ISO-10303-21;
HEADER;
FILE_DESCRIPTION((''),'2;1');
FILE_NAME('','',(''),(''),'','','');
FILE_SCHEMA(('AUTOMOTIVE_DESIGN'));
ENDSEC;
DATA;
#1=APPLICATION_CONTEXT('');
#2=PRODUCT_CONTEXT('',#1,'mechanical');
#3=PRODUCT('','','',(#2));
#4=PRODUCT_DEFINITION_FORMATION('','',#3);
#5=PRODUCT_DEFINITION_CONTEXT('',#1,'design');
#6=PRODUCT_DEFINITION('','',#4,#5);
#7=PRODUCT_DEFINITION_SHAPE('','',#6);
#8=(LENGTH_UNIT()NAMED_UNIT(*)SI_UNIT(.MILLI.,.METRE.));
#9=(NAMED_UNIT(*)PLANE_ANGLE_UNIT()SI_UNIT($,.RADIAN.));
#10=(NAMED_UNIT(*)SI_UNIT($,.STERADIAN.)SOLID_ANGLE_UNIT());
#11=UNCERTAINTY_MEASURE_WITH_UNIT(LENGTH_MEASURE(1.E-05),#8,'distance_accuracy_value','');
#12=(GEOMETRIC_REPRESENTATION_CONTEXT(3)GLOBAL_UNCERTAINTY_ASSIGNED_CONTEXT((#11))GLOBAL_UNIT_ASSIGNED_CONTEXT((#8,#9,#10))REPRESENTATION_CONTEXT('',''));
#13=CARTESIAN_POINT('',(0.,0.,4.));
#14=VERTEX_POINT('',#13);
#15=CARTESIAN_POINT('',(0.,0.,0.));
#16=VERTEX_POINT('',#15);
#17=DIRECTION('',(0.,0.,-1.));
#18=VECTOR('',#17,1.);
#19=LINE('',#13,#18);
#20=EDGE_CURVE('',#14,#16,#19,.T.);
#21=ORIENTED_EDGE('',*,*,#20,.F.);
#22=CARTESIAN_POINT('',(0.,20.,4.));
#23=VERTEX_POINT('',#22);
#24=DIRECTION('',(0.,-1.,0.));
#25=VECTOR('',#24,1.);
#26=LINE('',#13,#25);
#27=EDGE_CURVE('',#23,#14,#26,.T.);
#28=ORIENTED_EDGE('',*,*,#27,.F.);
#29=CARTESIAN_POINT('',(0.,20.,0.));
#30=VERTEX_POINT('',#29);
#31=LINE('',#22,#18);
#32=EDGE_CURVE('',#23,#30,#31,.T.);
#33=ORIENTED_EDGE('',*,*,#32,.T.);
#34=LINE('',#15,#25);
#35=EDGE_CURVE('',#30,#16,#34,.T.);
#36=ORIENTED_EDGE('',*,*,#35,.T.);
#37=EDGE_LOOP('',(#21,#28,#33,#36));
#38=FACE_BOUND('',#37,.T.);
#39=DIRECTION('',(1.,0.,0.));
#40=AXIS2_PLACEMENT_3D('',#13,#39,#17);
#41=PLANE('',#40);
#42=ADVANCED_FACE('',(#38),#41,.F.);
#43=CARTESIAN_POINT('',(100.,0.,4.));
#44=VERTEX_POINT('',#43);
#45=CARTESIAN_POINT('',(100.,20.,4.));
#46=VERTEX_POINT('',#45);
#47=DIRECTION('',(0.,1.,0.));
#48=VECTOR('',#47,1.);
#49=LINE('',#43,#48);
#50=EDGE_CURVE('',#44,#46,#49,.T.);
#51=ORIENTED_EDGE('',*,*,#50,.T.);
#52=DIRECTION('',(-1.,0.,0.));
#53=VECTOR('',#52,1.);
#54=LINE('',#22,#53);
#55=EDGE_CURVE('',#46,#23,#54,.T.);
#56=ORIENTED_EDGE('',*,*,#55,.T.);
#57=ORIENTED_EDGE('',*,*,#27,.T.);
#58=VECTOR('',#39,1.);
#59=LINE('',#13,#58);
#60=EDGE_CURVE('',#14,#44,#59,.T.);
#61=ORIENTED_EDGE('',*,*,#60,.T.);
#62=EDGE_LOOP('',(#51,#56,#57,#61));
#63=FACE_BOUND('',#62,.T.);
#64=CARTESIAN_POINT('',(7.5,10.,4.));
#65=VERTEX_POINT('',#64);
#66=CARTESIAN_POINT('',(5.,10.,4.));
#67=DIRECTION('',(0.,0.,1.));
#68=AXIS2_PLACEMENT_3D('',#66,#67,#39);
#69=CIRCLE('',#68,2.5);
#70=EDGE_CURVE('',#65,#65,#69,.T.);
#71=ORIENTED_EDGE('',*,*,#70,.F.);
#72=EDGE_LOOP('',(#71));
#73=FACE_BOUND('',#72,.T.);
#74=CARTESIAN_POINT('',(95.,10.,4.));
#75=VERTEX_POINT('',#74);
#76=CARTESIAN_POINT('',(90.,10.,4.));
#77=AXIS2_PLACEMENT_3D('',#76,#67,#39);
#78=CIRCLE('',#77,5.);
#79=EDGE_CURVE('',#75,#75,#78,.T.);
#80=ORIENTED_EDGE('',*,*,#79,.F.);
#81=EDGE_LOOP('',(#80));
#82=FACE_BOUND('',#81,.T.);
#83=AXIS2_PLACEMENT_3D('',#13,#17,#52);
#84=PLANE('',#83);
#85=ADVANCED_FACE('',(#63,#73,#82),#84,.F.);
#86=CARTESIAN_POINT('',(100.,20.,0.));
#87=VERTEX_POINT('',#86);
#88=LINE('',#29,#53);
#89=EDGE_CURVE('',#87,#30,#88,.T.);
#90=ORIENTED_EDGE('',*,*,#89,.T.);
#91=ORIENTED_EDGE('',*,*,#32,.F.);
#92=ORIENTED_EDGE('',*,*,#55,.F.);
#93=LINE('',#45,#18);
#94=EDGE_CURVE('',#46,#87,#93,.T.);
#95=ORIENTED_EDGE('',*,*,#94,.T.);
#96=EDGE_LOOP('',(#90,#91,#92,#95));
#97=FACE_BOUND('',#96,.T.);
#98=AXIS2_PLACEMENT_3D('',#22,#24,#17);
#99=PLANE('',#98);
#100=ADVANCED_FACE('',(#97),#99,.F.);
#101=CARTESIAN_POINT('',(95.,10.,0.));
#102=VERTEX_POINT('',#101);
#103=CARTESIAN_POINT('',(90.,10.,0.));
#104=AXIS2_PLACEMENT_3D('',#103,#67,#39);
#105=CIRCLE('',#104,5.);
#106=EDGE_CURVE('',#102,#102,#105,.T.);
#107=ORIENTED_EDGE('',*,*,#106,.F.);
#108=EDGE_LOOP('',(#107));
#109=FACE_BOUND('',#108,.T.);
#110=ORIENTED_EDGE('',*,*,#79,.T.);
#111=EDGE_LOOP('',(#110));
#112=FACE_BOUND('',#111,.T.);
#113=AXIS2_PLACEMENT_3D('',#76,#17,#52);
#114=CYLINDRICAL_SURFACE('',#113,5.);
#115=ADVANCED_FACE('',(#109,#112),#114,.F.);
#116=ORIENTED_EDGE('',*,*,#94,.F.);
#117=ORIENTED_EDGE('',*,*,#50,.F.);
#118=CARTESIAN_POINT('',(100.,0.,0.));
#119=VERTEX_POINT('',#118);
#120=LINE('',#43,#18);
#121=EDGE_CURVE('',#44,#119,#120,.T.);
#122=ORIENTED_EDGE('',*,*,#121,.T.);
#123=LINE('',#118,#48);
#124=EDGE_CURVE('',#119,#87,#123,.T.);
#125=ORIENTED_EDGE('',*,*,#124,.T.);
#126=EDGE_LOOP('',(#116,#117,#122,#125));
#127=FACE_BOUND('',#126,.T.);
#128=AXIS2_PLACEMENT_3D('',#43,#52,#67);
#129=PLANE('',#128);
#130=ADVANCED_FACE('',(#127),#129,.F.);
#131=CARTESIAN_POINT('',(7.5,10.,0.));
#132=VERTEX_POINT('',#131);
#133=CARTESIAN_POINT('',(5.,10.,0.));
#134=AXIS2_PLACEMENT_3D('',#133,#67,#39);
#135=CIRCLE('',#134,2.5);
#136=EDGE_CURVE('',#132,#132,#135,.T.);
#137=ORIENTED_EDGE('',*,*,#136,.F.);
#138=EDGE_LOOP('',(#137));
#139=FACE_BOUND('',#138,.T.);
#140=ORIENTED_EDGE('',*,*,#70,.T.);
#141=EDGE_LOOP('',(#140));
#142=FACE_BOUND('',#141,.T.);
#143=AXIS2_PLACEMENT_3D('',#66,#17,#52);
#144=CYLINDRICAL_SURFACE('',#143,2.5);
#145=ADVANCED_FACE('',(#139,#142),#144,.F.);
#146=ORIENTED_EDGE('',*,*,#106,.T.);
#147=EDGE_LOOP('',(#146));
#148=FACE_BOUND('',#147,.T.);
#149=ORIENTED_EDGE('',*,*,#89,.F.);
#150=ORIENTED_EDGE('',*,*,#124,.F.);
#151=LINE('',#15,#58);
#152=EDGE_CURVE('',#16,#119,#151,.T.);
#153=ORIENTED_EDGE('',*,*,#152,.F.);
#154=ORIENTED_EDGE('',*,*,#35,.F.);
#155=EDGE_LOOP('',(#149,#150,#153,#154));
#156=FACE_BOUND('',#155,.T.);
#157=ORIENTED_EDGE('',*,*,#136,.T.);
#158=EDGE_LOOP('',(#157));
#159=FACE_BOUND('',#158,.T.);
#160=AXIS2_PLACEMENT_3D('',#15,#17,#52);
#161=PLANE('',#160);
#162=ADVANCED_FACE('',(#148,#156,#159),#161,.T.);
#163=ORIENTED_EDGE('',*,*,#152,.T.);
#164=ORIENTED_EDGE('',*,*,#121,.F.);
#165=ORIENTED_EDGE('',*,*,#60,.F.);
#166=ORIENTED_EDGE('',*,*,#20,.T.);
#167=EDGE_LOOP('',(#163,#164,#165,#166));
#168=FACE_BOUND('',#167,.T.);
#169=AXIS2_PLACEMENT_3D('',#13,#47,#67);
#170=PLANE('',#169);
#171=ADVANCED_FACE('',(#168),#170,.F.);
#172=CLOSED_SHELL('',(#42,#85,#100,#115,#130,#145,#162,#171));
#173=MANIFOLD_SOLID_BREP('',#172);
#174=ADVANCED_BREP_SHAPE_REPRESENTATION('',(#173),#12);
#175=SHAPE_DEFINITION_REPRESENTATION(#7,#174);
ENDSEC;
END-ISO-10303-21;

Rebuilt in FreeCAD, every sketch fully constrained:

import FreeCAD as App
import Part
import Sketcher
from FreeCAD import Vector
Q = App.Units.Quantity


def add_polygon(sketch, points):
    """Adds a closed chain of lines whose ends are joined by coincident constraints."""
    first, n = sketch.GeometryCount, len(points)
    for a, b in zip(points, points[1:] + points[:1]):
        sketch.addGeometry(Part.LineSegment(App.Vector(*a, 0), App.Vector(*b, 0)), False)
    for i in range(n):
        sketch.addConstraint(Sketcher.Constraint("Coincident", first + i, 2, first + (i + 1) % n, 1))

doc = App.newDocument("Part")
body = doc.addObject("PartDesign::Body", "Body")

sketch1 = doc.addObject("Sketcher::SketchObject", "Sketch")
body.addObject(sketch1)
sketch1.AttachmentSupport = (doc.XY_Plane, [""])
sketch1.MapMode = "FlatFace"
add_polygon(sketch1, [(0, 20), (0, 0), (100, 0), (100, 20)])
sketch1.addGeometry(Part.Circle(Vector(5, 10, 0), Vector(0, 0, 1), 2.5), False)
sketch1.addGeometry(Part.Circle(Vector(90, 10, 0), Vector(0, 0, 1), 5), False)
sketch1.addConstraint(Sketcher.Constraint("Vertical", 0))
sketch1.addConstraint(Sketcher.Constraint("Horizontal", 1))
sketch1.addConstraint(Sketcher.Constraint("Vertical", 2))
sketch1.addConstraint(Sketcher.Constraint("Horizontal", 3))
sketch1.addConstraint(Sketcher.Constraint("Coincident", 0, 2, -1, 1))
sketch1.addConstraint(Sketcher.Constraint("Horizontal", 4, 3, 5, 3))
sketch1.addConstraint(Sketcher.Constraint("Diameter", 4, Q("5 mm")))
sketch1.addConstraint(Sketcher.Constraint("Diameter", 5, Q("10 mm")))
sketch1.addConstraint(Sketcher.Constraint("DistanceX", 1, 1, 1, 2, Q("100 mm")))
sketch1.addConstraint(Sketcher.Constraint("DistanceY", 0, 2, 0, 1, Q("20 mm")))
sketch1.addConstraint(Sketcher.Constraint("DistanceX", -1, 1, 4, 3, Q("5 mm")))
sketch1.addConstraint(Sketcher.Constraint("DistanceY", -1, 1, 4, 3, Q("10 mm")))
sketch1.addConstraint(Sketcher.Constraint("DistanceX", -1, 1, 5, 3, Q("90 mm")))
pad1 = doc.addObject("PartDesign::Pad", "Pad")
body.addObject(pad1)
pad1.Profile = sketch1
pad1.Length = 4

doc.recompute()
